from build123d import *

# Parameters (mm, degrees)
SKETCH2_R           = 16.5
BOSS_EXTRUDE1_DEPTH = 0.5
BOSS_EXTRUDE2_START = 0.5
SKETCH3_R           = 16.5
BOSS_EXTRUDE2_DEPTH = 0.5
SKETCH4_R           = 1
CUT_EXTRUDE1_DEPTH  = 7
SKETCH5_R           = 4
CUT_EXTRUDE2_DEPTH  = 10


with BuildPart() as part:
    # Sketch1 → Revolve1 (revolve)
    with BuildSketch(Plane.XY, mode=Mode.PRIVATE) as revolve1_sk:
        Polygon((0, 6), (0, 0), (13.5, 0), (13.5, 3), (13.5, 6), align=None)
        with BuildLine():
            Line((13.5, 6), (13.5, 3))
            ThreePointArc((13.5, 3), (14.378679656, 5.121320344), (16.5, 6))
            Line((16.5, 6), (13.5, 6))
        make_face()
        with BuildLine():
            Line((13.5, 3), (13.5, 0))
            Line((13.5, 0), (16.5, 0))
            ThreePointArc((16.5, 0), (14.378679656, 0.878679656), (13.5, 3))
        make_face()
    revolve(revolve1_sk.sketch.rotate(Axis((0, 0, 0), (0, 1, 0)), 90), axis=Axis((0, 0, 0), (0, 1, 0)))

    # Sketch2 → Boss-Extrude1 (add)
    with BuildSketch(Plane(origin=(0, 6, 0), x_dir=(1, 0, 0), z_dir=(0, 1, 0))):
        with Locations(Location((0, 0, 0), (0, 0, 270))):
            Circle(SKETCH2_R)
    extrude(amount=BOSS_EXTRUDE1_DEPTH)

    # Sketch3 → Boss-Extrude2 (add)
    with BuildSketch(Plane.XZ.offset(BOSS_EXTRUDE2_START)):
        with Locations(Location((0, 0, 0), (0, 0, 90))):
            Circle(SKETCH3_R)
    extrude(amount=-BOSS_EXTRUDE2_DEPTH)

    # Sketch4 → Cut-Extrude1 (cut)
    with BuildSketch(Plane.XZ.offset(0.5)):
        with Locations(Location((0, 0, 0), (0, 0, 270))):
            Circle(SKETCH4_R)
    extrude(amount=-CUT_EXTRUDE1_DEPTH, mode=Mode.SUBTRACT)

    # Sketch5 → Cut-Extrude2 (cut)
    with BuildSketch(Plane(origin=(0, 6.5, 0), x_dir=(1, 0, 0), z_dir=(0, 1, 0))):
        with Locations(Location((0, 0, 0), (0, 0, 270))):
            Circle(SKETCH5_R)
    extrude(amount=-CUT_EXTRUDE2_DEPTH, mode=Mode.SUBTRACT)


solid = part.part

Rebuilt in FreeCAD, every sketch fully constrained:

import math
import FreeCAD as App
import Part
import Sketcher
from FreeCAD import Vector

doc = App.newDocument("Part")
body = doc.addObject("PartDesign::Body", "Body")

sketch1 = body.newObject("Sketcher::SketchObject", "Sketch")
sketch1.AttachmentSupport = (doc.getObject("XY_Plane"), [""])
sketch1.MapMode = "FlatFace"
sketch1.addGeometry([
    Part.LineSegment(Vector(0, 6, 0), Vector(0, 0, 0)),
    Part.LineSegment(Vector(0, 0, 0), Vector(16.5, 0, 0)),
    Part.ArcOfCircle(Part.Circle(Vector(16.5, 3, 0), Vector(0, 0, 1), 3), math.radians(180), math.radians(270)),
    Part.ArcOfCircle(Part.Circle(Vector(16.5, 3, 0), Vector(0, 0, 1), 3), math.radians(90), math.radians(180)),
    Part.LineSegment(Vector(16.5, 6, 0), Vector(0, 6, 0)),
], False)
sketch1.addConstraint([
    Sketcher.Constraint("Coincident", 0, 2, 1, 1),
    Sketcher.Constraint("Tangent", 1, 2, 2, 2),
    Sketcher.Constraint("Tangent", 2, 1, 3, 2),
    Sketcher.Constraint("Tangent", 3, 1, 4, 1),
    Sketcher.Constraint("Coincident", 4, 2, 0, 1),
    Sketcher.Constraint("Vertical", 0),
    Sketcher.Constraint("Horizontal", 1),
    Sketcher.Constraint("Horizontal", 4),
    Sketcher.Constraint("Coincident", 0, 2, -1, 1),
    Sketcher.Constraint("Equal", 2, 3),
    Sketcher.Constraint("Horizontal", 3, 3, 2, 1),
    Sketcher.Constraint("Radius", 2, 3.0),
    Sketcher.Constraint("DistanceX", 1, 1, 1, 2, 16.5),
])
revolution = body.newObject("PartDesign::Revolution", "Revolution")
revolution.Profile = sketch1
revolution.ReferenceAxis = (sketch1, ["V_Axis"])
revolution.Angle = 360

sketch2 = body.newObject("Sketcher::SketchObject", "Sketch001")
sketch2.AttachmentSupport = (doc.getObject("XZ_Plane"), [""])
sketch2.MapMode = "FlatFace"
sketch2.AttachmentOffset = App.Placement(Vector(0, 0, -6), App.Rotation())
sketch2.addGeometry(Part.Circle(Vector(0, 0, 0), Vector(0, 0, 1), 16), False)
sketch2.addConstraint([
    Sketcher.Constraint("Coincident", 0, 3, -1, 1),
    Sketcher.Constraint("Diameter", 0, 33.0),
])
pad1 = body.newObject("PartDesign::Pad", "Pad")
pad1.Profile = sketch2
pad1.Length = 0.5
pad1.Reversed = True

sketch3 = body.newObject("Sketcher::SketchObject", "Sketch002")
sketch3.AttachmentSupport = (doc.getObject("XZ_Plane"), [""])
sketch3.MapMode = "FlatFace"
sketch3.AttachmentOffset = App.Placement(Vector(0, 0, 0.5), App.Rotation())
sketch3.addGeometry(Part.Circle(Vector(0, 0, 0), Vector(0, 0, 1), 16), False)
sketch3.addConstraint([
    Sketcher.Constraint("Coincident", 0, 3, -1, 1),
    Sketcher.Constraint("Diameter", 0, 33.0),
])
pad2 = body.newObject("PartDesign::Pad", "Pad001")
pad2.Profile = sketch3
pad2.Length = 0.5
pad2.Reversed = True

sketch4 = body.newObject("Sketcher::SketchObject", "Sketch003")
sketch4.AttachmentSupport = (doc.getObject("XZ_Plane"), [""])
sketch4.MapMode = "FlatFace"
sketch4.AttachmentOffset = App.Placement(Vector(0, 0, 0.5), App.Rotation())
sketch4.addGeometry(Part.Circle(Vector(0, 0, 0), Vector(0, 0, 1), 1), False)
sketch4.addConstraint([
    Sketcher.Constraint("Coincident", 0, 3, -1, 1),
    Sketcher.Constraint("Diameter", 0, 2.0),
])
pocket1 = body.newObject("PartDesign::Pocket", "Pocket")
pocket1.Profile = sketch4
pocket1.Length = 7

sketch5 = body.newObject("Sketcher::SketchObject", "Sketch004")
sketch5.AttachmentSupport = (doc.getObject("XZ_Plane"), [""])
sketch5.MapMode = "FlatFace"
sketch5.AttachmentOffset = App.Placement(Vector(0, 0, -6.5), App.Rotation())
sketch5.addGeometry(Part.Circle(Vector(0, 0, 0), Vector(0, 0, 1), 4), False)
sketch5.addConstraint([
    Sketcher.Constraint("Coincident", 0, 3, -1, 1),
    Sketcher.Constraint("Diameter", 0, 8.0),
])
pocket2 = body.newObject("PartDesign::Pocket", "Pocket001")
pocket2.Profile = sketch5
pocket2.Length = 10
pocket2.Reversed = True

doc.recompute()
